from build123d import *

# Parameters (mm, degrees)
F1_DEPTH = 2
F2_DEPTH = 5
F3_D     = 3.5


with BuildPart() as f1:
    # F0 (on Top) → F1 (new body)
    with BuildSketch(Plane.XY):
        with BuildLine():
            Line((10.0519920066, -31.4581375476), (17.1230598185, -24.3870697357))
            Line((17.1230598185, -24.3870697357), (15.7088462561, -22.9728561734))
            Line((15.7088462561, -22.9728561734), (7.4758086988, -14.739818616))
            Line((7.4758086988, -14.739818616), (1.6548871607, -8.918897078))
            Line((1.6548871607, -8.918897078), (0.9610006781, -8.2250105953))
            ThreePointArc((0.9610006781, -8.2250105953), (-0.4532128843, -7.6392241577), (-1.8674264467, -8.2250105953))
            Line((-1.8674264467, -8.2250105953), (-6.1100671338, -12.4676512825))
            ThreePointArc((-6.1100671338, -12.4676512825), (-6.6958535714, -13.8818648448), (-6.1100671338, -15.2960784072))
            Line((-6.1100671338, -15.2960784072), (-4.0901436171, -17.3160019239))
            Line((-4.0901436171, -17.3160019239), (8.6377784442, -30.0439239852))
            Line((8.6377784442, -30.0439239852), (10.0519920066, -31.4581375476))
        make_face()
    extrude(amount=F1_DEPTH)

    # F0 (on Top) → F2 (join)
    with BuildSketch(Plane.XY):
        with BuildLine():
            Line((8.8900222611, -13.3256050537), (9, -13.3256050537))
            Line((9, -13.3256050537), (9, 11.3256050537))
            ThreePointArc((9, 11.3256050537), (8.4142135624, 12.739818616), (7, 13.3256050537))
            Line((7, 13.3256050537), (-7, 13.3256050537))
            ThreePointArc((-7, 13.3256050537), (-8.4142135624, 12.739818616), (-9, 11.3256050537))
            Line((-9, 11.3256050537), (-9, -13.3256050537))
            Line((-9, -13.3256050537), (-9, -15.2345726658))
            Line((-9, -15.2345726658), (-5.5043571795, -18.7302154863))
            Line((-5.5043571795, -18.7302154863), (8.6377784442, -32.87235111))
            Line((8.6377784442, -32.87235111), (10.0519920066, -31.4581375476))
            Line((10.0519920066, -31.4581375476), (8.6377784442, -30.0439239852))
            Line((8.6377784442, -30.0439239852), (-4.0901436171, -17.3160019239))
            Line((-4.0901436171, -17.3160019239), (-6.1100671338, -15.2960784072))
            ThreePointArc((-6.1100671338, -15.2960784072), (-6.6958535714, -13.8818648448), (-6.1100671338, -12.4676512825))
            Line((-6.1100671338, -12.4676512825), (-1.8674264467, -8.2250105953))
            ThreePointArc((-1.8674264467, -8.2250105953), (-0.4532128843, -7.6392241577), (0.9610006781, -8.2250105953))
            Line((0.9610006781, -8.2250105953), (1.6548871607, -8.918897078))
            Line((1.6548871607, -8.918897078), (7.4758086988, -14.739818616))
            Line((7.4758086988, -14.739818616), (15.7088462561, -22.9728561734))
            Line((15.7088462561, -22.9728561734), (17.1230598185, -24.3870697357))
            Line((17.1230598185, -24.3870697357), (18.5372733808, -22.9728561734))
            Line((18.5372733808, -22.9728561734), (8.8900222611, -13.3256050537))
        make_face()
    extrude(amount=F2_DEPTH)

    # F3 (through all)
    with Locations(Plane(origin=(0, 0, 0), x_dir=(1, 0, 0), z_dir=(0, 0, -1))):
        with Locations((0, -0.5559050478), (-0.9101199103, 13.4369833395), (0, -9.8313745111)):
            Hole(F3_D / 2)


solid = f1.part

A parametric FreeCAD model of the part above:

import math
import FreeCAD as App
import Part
import Sketcher

V = App.Vector
Q = App.Units.Quantity

doc = App.newDocument("Part")
body = doc.addObject("PartDesign::Body", "Body")

sketch1 = body.newObject("Sketcher::SketchObject", "Sketch")
sketch1.AttachmentSupport = (doc.getObject("XY_Plane"), [""])
sketch1.MapMode = "FlatFace"
sketch1.addGeometry([
    Part.LineSegment(V(10.051992, -31.458138, 0), V(17.12306, -24.38707, 0)),
    Part.LineSegment(V(17.12306, -24.38707, 0), V(15.708846, -22.972856, 0)),
    Part.LineSegment(V(15.708846, -22.972856, 0), V(7.475809, -14.739819, 0)),
    Part.LineSegment(V(7.475809, -14.739819, 0), V(1.654887, -8.918897, 0)),
    Part.LineSegment(V(1.654887, -8.918897, 0), V(0.961001, -8.225011, 0)),
    Part.ArcOfCircle(Part.Circle(V(-0.453213, -9.639224, 0), V(0, 0, 1), 2), math.radians(45), math.radians(135)),
    Part.LineSegment(V(-1.867426, -8.225011, 0), V(-6.110067, -12.467651, 0)),
    Part.ArcOfCircle(Part.Circle(V(-4.695854, -13.881865, 0), V(0, 0, 1), 2), math.radians(135), math.radians(225)),
    Part.LineSegment(V(-6.110067, -15.296078, 0), V(10.051992, -31.458138, 0)),
], False)
sketch1.addConstraint([
    Sketcher.Constraint("Coincident", 0, 2, 1, 1),
    Sketcher.Constraint("Coincident", 1, 2, 2, 1),
    Sketcher.Constraint("Coincident", 2, 2, 3, 1),
    Sketcher.Constraint("Coincident", 3, 2, 4, 1),
    Sketcher.Constraint("Tangent", 4, 2, 5, 1),
    Sketcher.Constraint("Tangent", 5, 2, 6, 1),
    Sketcher.Constraint("Tangent", 6, 2, 7, 1),
    Sketcher.Constraint("Tangent", 7, 2, 8, 1),
    Sketcher.Constraint("Coincident", 8, 2, 0, 1),
    Sketcher.Constraint("Equal", 5, 7),
    Sketcher.Constraint("Perpendicular", 0, 1),
    Sketcher.Constraint("Parallel", 1, 2),
    Sketcher.Constraint("Parallel", 2, 3),
    Sketcher.Constraint("Parallel", 3, 4),
    Sketcher.Constraint("Perpendicular", 4, 6),
    Sketcher.Constraint("Perpendicular", 6, 8),
    Sketcher.Constraint("Horizontal", 4, 2, 5, 2),
    Sketcher.Constraint("Radius", 5, Q("2 mm")),
    Sketcher.Constraint("Distance", 0, Q("10 mm")),
    Sketcher.Constraint("Distance", 1, Q("2 mm")),
    Sketcher.Constraint("DistanceX", -1, 1, 4, 2, Q("0.961001 mm")),
    Sketcher.Constraint("DistanceX", 7, 3, 1, 2, Q("20.4047 mm")),
    Sketcher.Constraint("DistanceX", 5, 3, 3, 2, Q("2.1081 mm")),
    Sketcher.Constraint("DistanceY", 0, 2, -1, 1, Q("24.38707 mm")),
    Sketcher.Constraint("DistanceX", -1, 1, 2, 2, Q("7.475809 mm")),
])
pad1 = body.newObject("PartDesign::Pad", "Pad")
pad1.Profile = sketch1
pad1.Length = 2

sketch2 = body.newObject("Sketcher::SketchObject", "Sketch001")
sketch2.AttachmentSupport = (doc.getObject("XY_Plane"), [""])
sketch2.MapMode = "FlatFace"
sketch2.addGeometry([
    Part.LineSegment(V(8.890022, -13.325605, 0), V(9, -13.325605, 0)),
    Part.LineSegment(V(9, -13.325605, 0), V(9, 11.325605, 0)),
    Part.ArcOfCircle(Part.Circle(V(7, 11.325605, 0), V(0, 0, 1), 2), math.radians(0), math.radians(90)),
    Part.LineSegment(V(7, 13.325605, 0), V(-7, 13.325605, 0)),
    Part.ArcOfCircle(Part.Circle(V(-7, 11.325605, 0), V(0, 0, 1), 2), math.radians(90), math.radians(180)),
    Part.LineSegment(V(-9, 11.325605, 0), V(-9, -15.234573, 0)),
    Part.LineSegment(V(-9, -15.234573, 0), V(8.637778, -32.872351, 0)),
    Part.LineSegment(V(8.637778, -32.872351, 0), V(10.051992, -31.458138, 0)),
    Part.LineSegment(V(10.051992, -31.458138, 0), V(-6.110067, -15.296078, 0)),
    Part.ArcOfCircle(Part.Circle(V(-4.695854, -13.881865, 0), V(0, 0, 1), 2), math.radians(135), math.radians(225)),
    Part.LineSegment(V(-6.110067, -12.467651, 0), V(-1.867426, -8.225011, 0)),
    Part.ArcOfCircle(Part.Circle(V(-0.453213, -9.639224, 0), V(0, 0, 1), 2), math.radians(45), math.radians(135)),
    Part.LineSegment(V(0.961001, -8.225011, 0), V(1.654887, -8.918897, 0)),
    Part.LineSegment(V(1.654887, -8.918897, 0), V(7.475809, -14.739819, 0)),
    Part.LineSegment(V(7.475809, -14.739819, 0), V(15.708846, -22.972856, 0)),
    Part.LineSegment(V(15.708846, -22.972856, 0), V(17.12306, -24.38707, 0)),
    Part.LineSegment(V(17.12306, -24.38707, 0), V(18.537273, -22.972856, 0)),
    Part.LineSegment(V(18.537273, -22.972856, 0), V(8.890022, -13.325605, 0)),
], False)
sketch2.addConstraint([
    Sketcher.Constraint("Coincident", 0, 2, 1, 1),
    Sketcher.Constraint("Tangent", 1, 2, 2, 1),
    Sketcher.Constraint("Tangent", 2, 2, 3, 1),
    Sketcher.Constraint("Tangent", 3, 2, 4, 1),
    Sketcher.Constraint("Tangent", 4, 2, 5, 1),
    Sketcher.Constraint("Coincident", 5, 2, 6, 1),
    Sketcher.Constraint("Coincident", 6, 2, 7, 1),
    Sketcher.Constraint("Coincident", 7, 2, 8, 1),
    Sketcher.Constraint("Tangent", 8, 2, 9, 2),
    Sketcher.Constraint("Tangent", 9, 1, 10, 1),
    Sketcher.Constraint("Tangent", 10, 2, 11, 2),
    Sketcher.Constraint("Tangent", 11, 1, 12, 1),
    Sketcher.Constraint("Coincident", 12, 2, 13, 1),
    Sketcher.Constraint("Coincident", 13, 2, 14, 1),
    Sketcher.Constraint("Coincident", 14, 2, 15, 1),
    Sketcher.Constraint("Coincident", 15, 2, 16, 1),
    Sketcher.Constraint("Coincident", 16, 2, 17, 1),
    Sketcher.Constraint("Coincident", 17, 2, 0, 1),
    Sketcher.Constraint("Horizontal", 0),
    Sketcher.Constraint("Vertical", 1),
    Sketcher.Constraint("Horizontal", 3),
    Sketcher.Constraint("Vertical", 5),
    Sketcher.Constraint("Equal", 2, 4),
    Sketcher.Constraint("Equal", 4, 9),
    Sketcher.Constraint("Equal", 9, 11),
    Sketcher.Constraint("Perpendicular", 6, 7),
    Sketcher.Constraint("Perpendicular", 7, 8),
    Sketcher.Constraint("Perpendicular", 8, 10),
    Sketcher.Constraint("Perpendicular", 10, 12),
    Sketcher.Constraint("Parallel", 12, 13),
    Sketcher.Constraint("Parallel", 13, 14),
    Sketcher.Constraint("Parallel", 14, 15),
    Sketcher.Constraint("Perpendicular", 15, 16),
    Sketcher.Constraint("Perpendicular", 16, 17),
    Sketcher.Constraint("Horizontal", 10, 2, 11, 1),
    Sketcher.Constraint("Horizontal", 14, 2, 16, 2),
    Sketcher.Constraint("Equal", 7, 15),
    Sketcher.Constraint("Radius", 2, Q("2 mm")),
    Sketcher.Constraint("DistanceX", 3, 2, 3, 1, Q("14 mm")),
    Sketcher.Constraint("Distance", 7, Q("2 mm")),
    Sketcher.Constraint("Distance", 10, Q("6 mm")),
    Sketcher.Constraint("DistanceX", -1, 1, 2, 3, Q("7 mm")),
    Sketcher.Constraint("DistanceX", -1, 1, 11, 1, Q("0.961001 mm")),
    Sketcher.Constraint("DistanceY", 1, 1, 1, 2, Q("24.65121 mm")),
    Sketcher.Constraint("DistanceX", 11, 3, 12, 2, Q("2.1081 mm")),
    Sketcher.Constraint("DistanceX", 0, 1, 0, 2, Q("0.109978 mm")),
    Sketcher.Constraint("DistanceX", -1, 1, 6, 2, Q("8.637778 mm")),
    Sketcher.Constraint("DistanceY", 6, 2, -1, 1, Q("32.872351 mm")),
    Sketcher.Constraint("DistanceX", -1, 1, 13, 2, Q("7.475809 mm")),
    Sketcher.Constraint("DistanceX", -1, 1, 15, 2, Q("17.12306 mm")),
])
pad2 = body.newObject("PartDesign::Pad", "Pad001")
pad2.Profile = sketch2
pad2.Length = 5

sketch3 = body.newObject("Sketcher::SketchObject", "Sketch002")
sketch3.AttachmentSupport = (doc.getObject("XY_Plane"), [""])
sketch3.MapMode = "FlatFace"
sketch3.addGeometry([
    Part.Circle(V(0, 0.555905, 0), V(0, 0, 1), 1.75),
    Part.Circle(V(-0.91012, -13.436983, 0), V(0, 0, 1), 1.75),
    Part.Circle(V(0, 9.831375, 0), V(0, 0, 1), 1.75),
], False)
sketch3.addConstraint([
    Sketcher.Constraint("Equal", 0, 1),
    Sketcher.Constraint("Equal", 1, 2),
    Sketcher.Constraint("PointOnObject", 0, 3, -2),
    Sketcher.Constraint("PointOnObject", 2, 3, -2),
    Sketcher.Constraint("Diameter", 0, Q("3.5 mm")),
    Sketcher.Constraint("DistanceX", 1, 3, -1, 1, Q("0.91012 mm")),
    Sketcher.Constraint("DistanceY", 1, 3, 0, 3, Q("13.992888 mm")),
    Sketcher.Constraint("DistanceY", 0, 3, 2, 3, Q("9.275469 mm")),
    Sketcher.Constraint("DistanceY", -1, 1, 0, 3, Q("0.555905 mm")),
])
doc.recompute()
hole = body.newObject("PartDesign::Hole", "Hole")
hole.Profile = sketch3
hole.ThreadType = "None"
hole.Diameter = 3.5
hole.DepthType = "ThroughAll"
hole.Reversed = True

doc.recompute()
